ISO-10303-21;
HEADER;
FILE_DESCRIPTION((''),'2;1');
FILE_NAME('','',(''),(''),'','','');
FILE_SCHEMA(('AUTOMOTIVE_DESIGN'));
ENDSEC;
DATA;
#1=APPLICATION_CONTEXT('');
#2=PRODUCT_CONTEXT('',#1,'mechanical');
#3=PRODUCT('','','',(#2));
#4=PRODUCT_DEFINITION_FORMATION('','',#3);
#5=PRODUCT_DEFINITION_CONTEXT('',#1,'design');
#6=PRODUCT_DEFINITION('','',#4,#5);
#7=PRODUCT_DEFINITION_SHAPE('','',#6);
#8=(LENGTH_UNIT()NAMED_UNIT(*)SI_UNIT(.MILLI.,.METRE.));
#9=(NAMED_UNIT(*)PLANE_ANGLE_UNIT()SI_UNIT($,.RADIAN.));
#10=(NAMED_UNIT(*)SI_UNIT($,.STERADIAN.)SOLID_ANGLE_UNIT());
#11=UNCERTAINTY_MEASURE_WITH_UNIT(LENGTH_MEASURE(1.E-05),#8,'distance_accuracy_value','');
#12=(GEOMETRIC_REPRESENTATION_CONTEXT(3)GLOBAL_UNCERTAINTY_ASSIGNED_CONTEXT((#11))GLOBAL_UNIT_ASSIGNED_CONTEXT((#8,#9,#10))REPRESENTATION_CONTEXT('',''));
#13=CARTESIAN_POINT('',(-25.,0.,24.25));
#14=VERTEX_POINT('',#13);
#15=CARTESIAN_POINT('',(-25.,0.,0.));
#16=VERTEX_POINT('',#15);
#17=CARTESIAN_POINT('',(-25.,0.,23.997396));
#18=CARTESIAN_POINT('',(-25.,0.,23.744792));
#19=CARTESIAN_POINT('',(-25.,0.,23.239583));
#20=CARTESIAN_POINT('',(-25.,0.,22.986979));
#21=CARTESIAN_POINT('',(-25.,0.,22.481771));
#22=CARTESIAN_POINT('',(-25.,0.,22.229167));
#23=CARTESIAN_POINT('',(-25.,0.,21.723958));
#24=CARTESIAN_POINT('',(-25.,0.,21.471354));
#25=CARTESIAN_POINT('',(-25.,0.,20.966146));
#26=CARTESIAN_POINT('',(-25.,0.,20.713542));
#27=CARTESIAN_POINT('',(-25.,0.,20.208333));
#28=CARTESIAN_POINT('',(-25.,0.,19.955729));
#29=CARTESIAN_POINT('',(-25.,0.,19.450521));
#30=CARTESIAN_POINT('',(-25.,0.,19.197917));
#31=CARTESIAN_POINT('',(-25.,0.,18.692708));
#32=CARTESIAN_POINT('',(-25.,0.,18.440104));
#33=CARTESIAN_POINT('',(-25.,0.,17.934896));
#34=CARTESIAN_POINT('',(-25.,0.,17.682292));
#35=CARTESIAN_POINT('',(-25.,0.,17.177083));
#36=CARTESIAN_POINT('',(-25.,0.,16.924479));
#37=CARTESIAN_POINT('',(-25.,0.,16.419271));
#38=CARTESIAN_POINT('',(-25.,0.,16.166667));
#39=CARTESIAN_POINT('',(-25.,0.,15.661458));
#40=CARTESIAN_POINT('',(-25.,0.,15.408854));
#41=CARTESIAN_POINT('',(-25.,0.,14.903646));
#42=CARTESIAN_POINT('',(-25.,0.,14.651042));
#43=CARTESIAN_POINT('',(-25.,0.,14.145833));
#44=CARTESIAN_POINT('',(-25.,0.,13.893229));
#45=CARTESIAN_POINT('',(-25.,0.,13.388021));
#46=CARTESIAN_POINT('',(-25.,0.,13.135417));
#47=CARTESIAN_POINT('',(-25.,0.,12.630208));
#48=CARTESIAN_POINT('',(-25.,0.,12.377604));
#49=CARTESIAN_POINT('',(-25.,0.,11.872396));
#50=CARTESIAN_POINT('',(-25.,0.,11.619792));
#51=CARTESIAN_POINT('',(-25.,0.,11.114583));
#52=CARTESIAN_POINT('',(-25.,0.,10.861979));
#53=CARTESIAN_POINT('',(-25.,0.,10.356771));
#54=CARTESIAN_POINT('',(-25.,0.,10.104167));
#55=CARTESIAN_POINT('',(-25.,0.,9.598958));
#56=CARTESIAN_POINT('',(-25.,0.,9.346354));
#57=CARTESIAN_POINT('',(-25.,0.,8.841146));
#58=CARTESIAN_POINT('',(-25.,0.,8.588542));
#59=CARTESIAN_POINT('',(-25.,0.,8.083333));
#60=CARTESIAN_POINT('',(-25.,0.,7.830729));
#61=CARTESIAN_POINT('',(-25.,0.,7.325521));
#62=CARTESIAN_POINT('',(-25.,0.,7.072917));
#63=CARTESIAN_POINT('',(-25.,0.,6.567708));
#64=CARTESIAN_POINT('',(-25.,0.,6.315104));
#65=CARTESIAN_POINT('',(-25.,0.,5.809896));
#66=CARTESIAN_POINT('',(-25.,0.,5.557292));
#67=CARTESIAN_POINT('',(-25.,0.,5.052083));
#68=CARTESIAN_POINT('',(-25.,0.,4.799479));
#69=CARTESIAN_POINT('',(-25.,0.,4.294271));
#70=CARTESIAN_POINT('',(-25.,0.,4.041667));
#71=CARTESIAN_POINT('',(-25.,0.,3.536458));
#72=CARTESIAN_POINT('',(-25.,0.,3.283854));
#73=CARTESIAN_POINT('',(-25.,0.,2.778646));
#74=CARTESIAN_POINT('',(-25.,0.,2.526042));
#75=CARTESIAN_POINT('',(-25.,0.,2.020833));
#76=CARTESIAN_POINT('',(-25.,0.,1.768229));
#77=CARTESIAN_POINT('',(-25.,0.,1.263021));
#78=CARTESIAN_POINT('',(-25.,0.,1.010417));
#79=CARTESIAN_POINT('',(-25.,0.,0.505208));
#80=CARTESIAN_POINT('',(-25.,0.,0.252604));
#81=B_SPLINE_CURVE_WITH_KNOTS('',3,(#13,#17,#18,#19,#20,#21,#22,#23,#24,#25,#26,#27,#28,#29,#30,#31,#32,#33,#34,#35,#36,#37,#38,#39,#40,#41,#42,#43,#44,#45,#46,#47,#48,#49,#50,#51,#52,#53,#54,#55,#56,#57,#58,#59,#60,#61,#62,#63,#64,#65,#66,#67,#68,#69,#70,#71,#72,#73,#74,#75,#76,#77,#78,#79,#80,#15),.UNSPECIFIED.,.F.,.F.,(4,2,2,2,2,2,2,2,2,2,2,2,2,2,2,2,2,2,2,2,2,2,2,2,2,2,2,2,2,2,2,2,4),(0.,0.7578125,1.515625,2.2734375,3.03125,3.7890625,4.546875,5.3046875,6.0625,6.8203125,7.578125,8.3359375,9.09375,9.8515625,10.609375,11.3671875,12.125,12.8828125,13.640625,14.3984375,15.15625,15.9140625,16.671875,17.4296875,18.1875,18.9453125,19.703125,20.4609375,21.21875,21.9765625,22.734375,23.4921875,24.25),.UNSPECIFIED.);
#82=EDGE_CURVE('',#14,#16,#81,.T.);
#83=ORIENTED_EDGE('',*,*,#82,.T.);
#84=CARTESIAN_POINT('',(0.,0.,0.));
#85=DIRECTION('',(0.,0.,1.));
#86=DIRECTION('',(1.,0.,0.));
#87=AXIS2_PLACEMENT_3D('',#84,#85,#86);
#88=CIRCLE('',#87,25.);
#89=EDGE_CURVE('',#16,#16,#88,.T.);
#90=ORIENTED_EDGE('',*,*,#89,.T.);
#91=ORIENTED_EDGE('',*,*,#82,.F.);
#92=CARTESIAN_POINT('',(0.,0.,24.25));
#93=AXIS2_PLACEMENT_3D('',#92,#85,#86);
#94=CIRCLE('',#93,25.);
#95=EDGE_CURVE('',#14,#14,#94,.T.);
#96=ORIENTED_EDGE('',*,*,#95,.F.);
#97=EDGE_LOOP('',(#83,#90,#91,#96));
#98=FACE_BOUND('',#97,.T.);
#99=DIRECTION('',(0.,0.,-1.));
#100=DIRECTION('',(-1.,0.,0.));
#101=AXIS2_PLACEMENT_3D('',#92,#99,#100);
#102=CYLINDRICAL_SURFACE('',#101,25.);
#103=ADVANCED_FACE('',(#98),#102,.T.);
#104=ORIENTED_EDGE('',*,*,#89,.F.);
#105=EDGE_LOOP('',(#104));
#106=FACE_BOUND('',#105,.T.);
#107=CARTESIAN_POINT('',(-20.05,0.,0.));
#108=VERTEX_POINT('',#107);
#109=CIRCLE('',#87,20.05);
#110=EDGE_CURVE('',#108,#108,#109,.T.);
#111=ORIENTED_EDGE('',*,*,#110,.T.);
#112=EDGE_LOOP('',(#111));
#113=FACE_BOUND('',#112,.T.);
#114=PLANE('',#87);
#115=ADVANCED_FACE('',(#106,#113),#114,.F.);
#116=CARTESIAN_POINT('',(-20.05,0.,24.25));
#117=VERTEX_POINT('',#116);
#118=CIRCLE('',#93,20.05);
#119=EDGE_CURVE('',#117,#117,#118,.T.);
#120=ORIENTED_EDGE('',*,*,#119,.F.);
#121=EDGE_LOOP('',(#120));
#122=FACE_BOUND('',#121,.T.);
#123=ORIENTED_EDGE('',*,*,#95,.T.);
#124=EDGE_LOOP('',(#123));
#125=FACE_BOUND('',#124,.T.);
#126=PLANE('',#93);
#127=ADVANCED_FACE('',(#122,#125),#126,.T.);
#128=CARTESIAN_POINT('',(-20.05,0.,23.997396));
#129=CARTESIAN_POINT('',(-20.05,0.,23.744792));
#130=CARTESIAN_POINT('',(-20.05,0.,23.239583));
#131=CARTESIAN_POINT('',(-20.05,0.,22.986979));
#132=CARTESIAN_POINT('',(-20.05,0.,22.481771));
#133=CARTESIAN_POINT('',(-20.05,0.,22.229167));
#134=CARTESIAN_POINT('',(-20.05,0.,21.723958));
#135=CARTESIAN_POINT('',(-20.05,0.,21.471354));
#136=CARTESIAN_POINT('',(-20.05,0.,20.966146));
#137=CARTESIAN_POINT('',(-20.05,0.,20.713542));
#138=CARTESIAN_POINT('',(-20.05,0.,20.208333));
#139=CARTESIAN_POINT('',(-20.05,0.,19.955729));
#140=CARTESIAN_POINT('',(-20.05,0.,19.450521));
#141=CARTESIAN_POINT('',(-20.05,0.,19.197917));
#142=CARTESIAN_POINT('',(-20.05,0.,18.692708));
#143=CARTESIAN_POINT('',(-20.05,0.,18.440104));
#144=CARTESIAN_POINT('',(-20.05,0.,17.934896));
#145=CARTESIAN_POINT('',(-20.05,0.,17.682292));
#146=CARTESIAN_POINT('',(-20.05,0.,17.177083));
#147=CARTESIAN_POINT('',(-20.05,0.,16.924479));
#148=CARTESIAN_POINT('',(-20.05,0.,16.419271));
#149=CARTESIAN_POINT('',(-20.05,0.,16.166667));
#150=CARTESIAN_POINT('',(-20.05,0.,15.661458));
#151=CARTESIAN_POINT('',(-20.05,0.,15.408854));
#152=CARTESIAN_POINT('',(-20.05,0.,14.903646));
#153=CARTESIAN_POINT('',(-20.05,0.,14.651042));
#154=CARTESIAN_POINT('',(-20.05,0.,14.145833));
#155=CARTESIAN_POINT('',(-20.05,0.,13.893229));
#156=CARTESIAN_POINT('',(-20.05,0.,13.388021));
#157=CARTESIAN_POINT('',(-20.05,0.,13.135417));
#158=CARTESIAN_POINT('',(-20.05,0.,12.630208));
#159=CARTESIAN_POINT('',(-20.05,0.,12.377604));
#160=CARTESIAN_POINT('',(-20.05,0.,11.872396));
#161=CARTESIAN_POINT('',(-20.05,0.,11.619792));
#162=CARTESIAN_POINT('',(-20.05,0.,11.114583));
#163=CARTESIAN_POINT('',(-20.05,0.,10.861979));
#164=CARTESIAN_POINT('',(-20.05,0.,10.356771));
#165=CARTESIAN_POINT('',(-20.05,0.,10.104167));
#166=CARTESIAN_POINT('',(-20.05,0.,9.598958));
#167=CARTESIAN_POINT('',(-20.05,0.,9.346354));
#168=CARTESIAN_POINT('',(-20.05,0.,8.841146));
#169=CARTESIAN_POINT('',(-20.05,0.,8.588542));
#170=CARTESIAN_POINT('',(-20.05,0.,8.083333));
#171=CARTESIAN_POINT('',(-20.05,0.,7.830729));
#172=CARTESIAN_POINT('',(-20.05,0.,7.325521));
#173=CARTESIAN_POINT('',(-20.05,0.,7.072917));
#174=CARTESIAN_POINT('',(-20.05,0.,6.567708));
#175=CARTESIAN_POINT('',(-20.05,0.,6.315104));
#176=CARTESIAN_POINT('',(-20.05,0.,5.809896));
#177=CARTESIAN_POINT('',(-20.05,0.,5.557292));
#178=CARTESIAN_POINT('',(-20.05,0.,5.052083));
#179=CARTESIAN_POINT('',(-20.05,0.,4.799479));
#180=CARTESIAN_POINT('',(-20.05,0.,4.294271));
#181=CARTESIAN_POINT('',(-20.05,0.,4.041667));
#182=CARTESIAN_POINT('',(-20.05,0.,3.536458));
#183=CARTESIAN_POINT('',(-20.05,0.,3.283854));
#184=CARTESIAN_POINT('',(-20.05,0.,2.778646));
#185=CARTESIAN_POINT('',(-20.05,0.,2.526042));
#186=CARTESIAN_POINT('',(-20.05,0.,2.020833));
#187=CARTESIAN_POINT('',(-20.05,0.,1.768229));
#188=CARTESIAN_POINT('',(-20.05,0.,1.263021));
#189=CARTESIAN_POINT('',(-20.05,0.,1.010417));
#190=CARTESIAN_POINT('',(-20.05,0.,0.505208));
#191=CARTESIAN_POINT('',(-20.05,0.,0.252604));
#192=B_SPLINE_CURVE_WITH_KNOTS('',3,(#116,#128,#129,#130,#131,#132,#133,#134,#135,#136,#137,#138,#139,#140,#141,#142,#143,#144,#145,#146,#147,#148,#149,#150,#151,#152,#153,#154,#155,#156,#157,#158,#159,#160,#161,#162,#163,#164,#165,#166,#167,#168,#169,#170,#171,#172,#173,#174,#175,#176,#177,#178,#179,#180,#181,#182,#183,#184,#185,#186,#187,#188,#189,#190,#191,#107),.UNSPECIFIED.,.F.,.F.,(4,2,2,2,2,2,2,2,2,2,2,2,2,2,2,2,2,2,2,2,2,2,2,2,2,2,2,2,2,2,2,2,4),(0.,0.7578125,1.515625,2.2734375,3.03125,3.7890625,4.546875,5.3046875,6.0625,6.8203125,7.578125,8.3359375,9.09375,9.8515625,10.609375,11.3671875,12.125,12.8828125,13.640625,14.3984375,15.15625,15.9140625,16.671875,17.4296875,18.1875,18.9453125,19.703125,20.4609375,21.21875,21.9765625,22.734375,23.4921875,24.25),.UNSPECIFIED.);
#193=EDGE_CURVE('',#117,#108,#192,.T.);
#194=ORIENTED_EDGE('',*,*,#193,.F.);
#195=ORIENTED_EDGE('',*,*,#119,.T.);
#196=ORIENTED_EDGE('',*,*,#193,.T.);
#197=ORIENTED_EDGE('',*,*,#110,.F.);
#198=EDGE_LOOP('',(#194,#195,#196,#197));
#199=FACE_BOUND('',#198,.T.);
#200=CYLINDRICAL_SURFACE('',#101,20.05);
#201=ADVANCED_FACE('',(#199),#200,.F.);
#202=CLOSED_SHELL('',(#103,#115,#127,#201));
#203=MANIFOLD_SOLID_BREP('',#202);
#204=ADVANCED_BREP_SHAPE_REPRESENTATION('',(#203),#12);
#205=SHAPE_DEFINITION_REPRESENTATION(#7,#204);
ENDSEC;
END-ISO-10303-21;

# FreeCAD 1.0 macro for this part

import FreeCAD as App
import Part
import Sketcher

V = App.Vector
Q = App.Units.Quantity

doc = App.newDocument("Part")
body = doc.addObject("PartDesign::Body", "Body")

# Sketch on XY plane
sketch1 = body.newObject("Sketcher::SketchObject", "Sketch")
sketch1.AttachmentSupport = (doc.getObject("XY_Plane"), [""])
sketch1.MapMode = "FlatFace"
sketch1.addGeometry([
    Part.Circle(V(0, 0, 0), V(0, 0, 1), 25),
    Part.Circle(V(0, 0, 0), V(0, 0, 1), 20),
], False)
sketch1.addConstraint([
    Sketcher.Constraint("Coincident", 0, 3, -1, 1),
    Sketcher.Constraint("Coincident", 1, 3, -1, 1),
    Sketcher.Constraint("Diameter", 0, Q("50 mm")),
    Sketcher.Constraint("Diameter", 1, Q("40.1 mm")),
])
pad1 = body.newObject("PartDesign::Pad", "Pad")
pad1.Profile = sketch1
pad1.Length = 24.25

doc.recompute()
